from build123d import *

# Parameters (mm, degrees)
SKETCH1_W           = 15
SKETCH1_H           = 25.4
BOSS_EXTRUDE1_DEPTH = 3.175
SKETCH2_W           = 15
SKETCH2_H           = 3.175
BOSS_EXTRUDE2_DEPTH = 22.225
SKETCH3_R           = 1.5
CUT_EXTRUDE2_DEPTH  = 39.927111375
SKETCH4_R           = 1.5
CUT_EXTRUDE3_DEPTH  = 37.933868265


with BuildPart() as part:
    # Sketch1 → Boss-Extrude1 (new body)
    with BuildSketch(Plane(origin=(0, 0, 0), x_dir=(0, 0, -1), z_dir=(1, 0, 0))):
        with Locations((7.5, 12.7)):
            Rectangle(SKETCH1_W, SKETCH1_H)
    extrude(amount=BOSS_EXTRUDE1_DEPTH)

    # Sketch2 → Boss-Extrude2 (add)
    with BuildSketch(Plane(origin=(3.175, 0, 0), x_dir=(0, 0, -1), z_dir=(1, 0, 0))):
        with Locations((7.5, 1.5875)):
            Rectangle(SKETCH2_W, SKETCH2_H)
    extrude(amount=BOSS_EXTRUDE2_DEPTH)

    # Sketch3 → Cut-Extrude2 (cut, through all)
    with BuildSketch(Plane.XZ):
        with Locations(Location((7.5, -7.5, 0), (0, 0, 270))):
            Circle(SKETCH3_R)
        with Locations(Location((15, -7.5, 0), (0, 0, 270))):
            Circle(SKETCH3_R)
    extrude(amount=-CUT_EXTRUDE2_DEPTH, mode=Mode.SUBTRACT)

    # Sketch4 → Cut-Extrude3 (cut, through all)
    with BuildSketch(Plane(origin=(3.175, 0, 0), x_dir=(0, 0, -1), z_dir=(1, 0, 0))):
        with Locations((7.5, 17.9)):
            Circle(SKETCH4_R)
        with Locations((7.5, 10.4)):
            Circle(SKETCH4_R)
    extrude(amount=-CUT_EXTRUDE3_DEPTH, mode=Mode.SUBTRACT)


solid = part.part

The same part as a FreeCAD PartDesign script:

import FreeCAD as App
import Part
import Sketcher
from FreeCAD import Vector
Q = App.Units.Quantity

doc = App.newDocument("Part")
body = doc.addObject("PartDesign::Body", "Body")

# Sketch on YZ plane
sketch1 = body.newObject("Sketcher::SketchObject", "Sketch")
sketch1.AttachmentSupport = (doc.getObject("YZ_Plane"), [""])
sketch1.MapMode = "FlatFace"
sketch1.addGeometry([
    Part.LineSegment(Vector(25, 0, 0), Vector(0, 0, 0)),
    Part.LineSegment(Vector(0, 0, 0), Vector(0, -15, 0)),
    Part.LineSegment(Vector(0, -15, 0), Vector(25, -15, 0)),
    Part.LineSegment(Vector(25, -15, 0), Vector(25, 0, 0)),
], False)
sketch1.addConstraint([
    Sketcher.Constraint("Coincident", 0, 2, 1, 1),
    Sketcher.Constraint("Coincident", 1, 2, 2, 1),
    Sketcher.Constraint("Coincident", 2, 2, 3, 1),
    Sketcher.Constraint("Coincident", 3, 2, 0, 1),
    Sketcher.Constraint("Horizontal", 0),
    Sketcher.Constraint("Vertical", 1),
    Sketcher.Constraint("Horizontal", 2),
    Sketcher.Constraint("Vertical", 3),
    Sketcher.Constraint("Coincident", 0, 2, -1, 1),
    Sketcher.Constraint("DistanceX", 0, 2, 0, 1, Q("1 in")),
    Sketcher.Constraint("DistanceY", 1, 2, 1, 1, 15.0),
])
pad1 = body.newObject("PartDesign::Pad", "Pad")
pad1.Profile = sketch1
pad1.Length = Q("0.125 in")

# Sketch on YZ plane
sketch2 = body.newObject("Sketcher::SketchObject", "Sketch001")
sketch2.AttachmentSupport = (doc.getObject("YZ_Plane"), [""])
sketch2.MapMode = "FlatFace"
sketch2.AttachmentOffset = App.Placement(Vector(0, 0, 0.125 * 25.4), App.Rotation())
sketch2.addGeometry([
    Part.LineSegment(Vector(3.2, 0, 0), Vector(0, 0, 0)),
    Part.LineSegment(Vector(0, 0, 0), Vector(0, -15, 0)),
    Part.LineSegment(Vector(0, -15, 0), Vector(3.2, -15, 0)),
    Part.LineSegment(Vector(3.2, -15, 0), Vector(3.2, 0, 0)),
], False)
sketch2.addConstraint([
    Sketcher.Constraint("Coincident", 0, 2, 1, 1),
    Sketcher.Constraint("Coincident", 1, 2, 2, 1),
    Sketcher.Constraint("Coincident", 2, 2, 3, 1),
    Sketcher.Constraint("Coincident", 3, 2, 0, 1),
    Sketcher.Constraint("Horizontal", 0),
    Sketcher.Constraint("Vertical", 1),
    Sketcher.Constraint("Horizontal", 2),
    Sketcher.Constraint("Vertical", 3),
    Sketcher.Constraint("Coincident", 0, 2, -1, 1),
    Sketcher.Constraint("DistanceX", 0, 2, 0, 1, Q("0.125 in")),
    Sketcher.Constraint("DistanceY", 1, 2, 1, 1, 15.0),
])
pad2 = body.newObject("PartDesign::Pad", "Pad001")
pad2.Profile = sketch2
pad2.Length = Q("0.875 in")

# Sketch on XZ plane
sketch3 = body.newObject("Sketcher::SketchObject", "Sketch002")
sketch3.AttachmentSupport = (doc.getObject("XZ_Plane"), [""])
sketch3.MapMode = "FlatFace"
sketch3.addGeometry([
    Part.Circle(Vector(7.5, -7.5, 0), Vector(0, 0, 1), 1.5),
    Part.Circle(Vector(15, -7.5, 0), Vector(0, 0, 1), 1.5),
], False)
sketch3.addConstraint([
    Sketcher.Constraint("Equal", 0, 1),
    Sketcher.Constraint("Horizontal", 0, 3, 1, 3),
    Sketcher.Constraint("Diameter", 0, 3.0),
    Sketcher.Constraint("DistanceX", -1, 1, 0, 3, 7.5),
    Sketcher.Constraint("DistanceY", 0, 3, -1, 1, 7.5),
    Sketcher.Constraint("DistanceX", -1, 1, 1, 3, 15.0),
])
pocket1 = body.newObject("PartDesign::Pocket", "Pocket")
pocket1.Profile = sketch3
pocket1.Type = "ThroughAll"

# Sketch on YZ plane
sketch4 = body.newObject("Sketcher::SketchObject", "Sketch003")
sketch4.AttachmentSupport = (doc.getObject("YZ_Plane"), [""])
sketch4.MapMode = "FlatFace"
sketch4.AttachmentOffset = App.Placement(Vector(0, 0, 0.125 * 25.4), App.Rotation())
sketch4.addGeometry([
    Part.Circle(Vector(17.9, -7.5, 0), Vector(0, 0, 1), 1.5),
    Part.Circle(Vector(10.4, -7.5, 0), Vector(0, 0, 1), 1.5),
], False)
sketch4.addConstraint([
    Sketcher.Constraint("Equal", 0, 1),
    Sketcher.Constraint("Horizontal", 0, 3, 1, 3),
    Sketcher.Constraint("Diameter", 0, 3.0),
    Sketcher.Constraint("DistanceX", -1, 1, 0, 3, 17.9),
    Sketcher.Constraint("DistanceY", 0, 3, -1, 1, 7.5),
    Sketcher.Constraint("DistanceX", -1, 1, 1, 3, 10.4),
])
pocket2 = body.newObject("PartDesign::Pocket", "Pocket001")
pocket2.Profile = sketch4
pocket2.Type = "ThroughAll"

doc.recompute()
